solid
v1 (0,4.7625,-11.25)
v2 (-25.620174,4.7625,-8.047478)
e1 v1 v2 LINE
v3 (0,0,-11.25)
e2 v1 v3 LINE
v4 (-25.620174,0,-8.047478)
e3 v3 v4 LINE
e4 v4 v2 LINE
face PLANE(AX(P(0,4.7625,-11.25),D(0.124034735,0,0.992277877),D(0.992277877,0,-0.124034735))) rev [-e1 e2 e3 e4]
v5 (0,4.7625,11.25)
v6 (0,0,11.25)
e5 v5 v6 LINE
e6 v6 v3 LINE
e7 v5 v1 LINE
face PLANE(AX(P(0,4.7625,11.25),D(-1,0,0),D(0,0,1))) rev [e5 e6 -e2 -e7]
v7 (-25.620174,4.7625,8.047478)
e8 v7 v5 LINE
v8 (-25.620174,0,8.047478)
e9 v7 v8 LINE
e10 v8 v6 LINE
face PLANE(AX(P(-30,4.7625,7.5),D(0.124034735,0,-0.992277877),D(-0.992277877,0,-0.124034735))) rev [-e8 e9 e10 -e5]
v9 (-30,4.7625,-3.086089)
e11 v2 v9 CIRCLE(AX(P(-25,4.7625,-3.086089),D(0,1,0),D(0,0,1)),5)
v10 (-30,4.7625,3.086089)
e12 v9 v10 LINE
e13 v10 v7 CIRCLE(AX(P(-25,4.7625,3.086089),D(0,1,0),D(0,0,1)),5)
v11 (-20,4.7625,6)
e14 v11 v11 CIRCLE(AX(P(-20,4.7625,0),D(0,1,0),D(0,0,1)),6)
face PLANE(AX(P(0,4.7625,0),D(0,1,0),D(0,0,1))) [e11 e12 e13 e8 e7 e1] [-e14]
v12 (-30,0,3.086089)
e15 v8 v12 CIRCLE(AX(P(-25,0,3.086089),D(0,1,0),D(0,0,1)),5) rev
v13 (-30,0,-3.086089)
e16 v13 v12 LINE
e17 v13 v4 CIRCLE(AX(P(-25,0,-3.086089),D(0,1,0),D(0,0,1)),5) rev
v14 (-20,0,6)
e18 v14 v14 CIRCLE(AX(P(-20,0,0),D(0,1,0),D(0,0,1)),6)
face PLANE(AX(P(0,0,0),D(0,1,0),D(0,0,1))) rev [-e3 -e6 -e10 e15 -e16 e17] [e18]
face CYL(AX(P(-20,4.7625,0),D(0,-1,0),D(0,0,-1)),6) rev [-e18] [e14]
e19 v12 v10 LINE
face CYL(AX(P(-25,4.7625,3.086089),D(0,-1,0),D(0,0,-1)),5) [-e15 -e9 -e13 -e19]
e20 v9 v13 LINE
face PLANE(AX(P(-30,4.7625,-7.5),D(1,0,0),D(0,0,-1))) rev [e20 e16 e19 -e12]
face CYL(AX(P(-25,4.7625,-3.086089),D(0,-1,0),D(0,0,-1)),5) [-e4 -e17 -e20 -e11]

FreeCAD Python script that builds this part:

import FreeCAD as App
import Part
import Sketcher
from FreeCAD import Vector


def edges_at(feature, points):
    """Names of the edges that pass closest to the given points."""
    edges = feature.Shape.Edges
    near = lambda p: min(range(len(edges)), key=lambda i: edges[i].distToShape(Part.Vertex(*p))[0])
    return sorted({f"Edge{near(p) + 1}" for p in points})

doc = App.newDocument("Part")
body = doc.addObject("PartDesign::Body", "Body")

# Sketch on XZ plane
sketch1 = body.newObject("Sketcher::SketchObject", "Sketch")
sketch1.AttachmentSupport = (doc.getObject("XZ_Plane"), [""])
sketch1.MapMode = "FlatFace"
sketch1.addGeometry([
    Part.LineSegment(Vector(0, 11, 0), Vector(0, -11, 0)),  # 0
    Part.LineSegment(Vector(0, -11, 0), Vector(-30, -8, 0)),  # 1
    Part.LineSegment(Vector(-30, -8, 0), Vector(-30, 8, 0)),  # 2
    Part.LineSegment(Vector(-30, 8, 0), Vector(0, 11, 0)),  # 3
    Part.Circle(Vector(-20, 0, 0), Vector(0, 0, 1), 6),  # 4
], False)
sketch1.addConstraint([
    Sketcher.Constraint("Coincident", 0, 2, 1, 1),
    Sketcher.Constraint("Coincident", 1, 2, 2, 1),
    Sketcher.Constraint("Coincident", 2, 2, 3, 1),
    Sketcher.Constraint("Coincident", 3, 2, 0, 1),
    Sketcher.Constraint("Vertical", 0),
    Sketcher.Constraint("Vertical", 2),
    Sketcher.Constraint("Symmetric", 0, 2, 3, 2, -1, 1),
    Sketcher.Constraint("PointOnObject", 4, 3, -1),
    Sketcher.Constraint("Equal", 1, 3),
    Sketcher.Constraint("Diameter", 4, 12.0),
    Sketcher.Constraint("DistanceY", 2, 1, 2, 2, 15.0),
    Sketcher.Constraint("DistanceY", 0, 2, 0, 1, 22.5),
    Sketcher.Constraint("DistanceX", 4, 3, -1, 1, 20.0),
    Sketcher.Constraint("DistanceX", 1, 2, -1, 1, 30.0),
])
pad1 = body.newObject("PartDesign::Pad", "Pad")
pad1.Profile = sketch1
pad1.Length = 4.7625
pad1.Reversed = True
doc.recompute()

fillet = body.newObject("PartDesign::Fillet", "Fillet")
fillet.Base = (pad1, edges_at(pad1, [(-30, 2.381, 7.5), (-30, 2.381, -7.5)]))
fillet.Radius = 5

doc.recompute()
